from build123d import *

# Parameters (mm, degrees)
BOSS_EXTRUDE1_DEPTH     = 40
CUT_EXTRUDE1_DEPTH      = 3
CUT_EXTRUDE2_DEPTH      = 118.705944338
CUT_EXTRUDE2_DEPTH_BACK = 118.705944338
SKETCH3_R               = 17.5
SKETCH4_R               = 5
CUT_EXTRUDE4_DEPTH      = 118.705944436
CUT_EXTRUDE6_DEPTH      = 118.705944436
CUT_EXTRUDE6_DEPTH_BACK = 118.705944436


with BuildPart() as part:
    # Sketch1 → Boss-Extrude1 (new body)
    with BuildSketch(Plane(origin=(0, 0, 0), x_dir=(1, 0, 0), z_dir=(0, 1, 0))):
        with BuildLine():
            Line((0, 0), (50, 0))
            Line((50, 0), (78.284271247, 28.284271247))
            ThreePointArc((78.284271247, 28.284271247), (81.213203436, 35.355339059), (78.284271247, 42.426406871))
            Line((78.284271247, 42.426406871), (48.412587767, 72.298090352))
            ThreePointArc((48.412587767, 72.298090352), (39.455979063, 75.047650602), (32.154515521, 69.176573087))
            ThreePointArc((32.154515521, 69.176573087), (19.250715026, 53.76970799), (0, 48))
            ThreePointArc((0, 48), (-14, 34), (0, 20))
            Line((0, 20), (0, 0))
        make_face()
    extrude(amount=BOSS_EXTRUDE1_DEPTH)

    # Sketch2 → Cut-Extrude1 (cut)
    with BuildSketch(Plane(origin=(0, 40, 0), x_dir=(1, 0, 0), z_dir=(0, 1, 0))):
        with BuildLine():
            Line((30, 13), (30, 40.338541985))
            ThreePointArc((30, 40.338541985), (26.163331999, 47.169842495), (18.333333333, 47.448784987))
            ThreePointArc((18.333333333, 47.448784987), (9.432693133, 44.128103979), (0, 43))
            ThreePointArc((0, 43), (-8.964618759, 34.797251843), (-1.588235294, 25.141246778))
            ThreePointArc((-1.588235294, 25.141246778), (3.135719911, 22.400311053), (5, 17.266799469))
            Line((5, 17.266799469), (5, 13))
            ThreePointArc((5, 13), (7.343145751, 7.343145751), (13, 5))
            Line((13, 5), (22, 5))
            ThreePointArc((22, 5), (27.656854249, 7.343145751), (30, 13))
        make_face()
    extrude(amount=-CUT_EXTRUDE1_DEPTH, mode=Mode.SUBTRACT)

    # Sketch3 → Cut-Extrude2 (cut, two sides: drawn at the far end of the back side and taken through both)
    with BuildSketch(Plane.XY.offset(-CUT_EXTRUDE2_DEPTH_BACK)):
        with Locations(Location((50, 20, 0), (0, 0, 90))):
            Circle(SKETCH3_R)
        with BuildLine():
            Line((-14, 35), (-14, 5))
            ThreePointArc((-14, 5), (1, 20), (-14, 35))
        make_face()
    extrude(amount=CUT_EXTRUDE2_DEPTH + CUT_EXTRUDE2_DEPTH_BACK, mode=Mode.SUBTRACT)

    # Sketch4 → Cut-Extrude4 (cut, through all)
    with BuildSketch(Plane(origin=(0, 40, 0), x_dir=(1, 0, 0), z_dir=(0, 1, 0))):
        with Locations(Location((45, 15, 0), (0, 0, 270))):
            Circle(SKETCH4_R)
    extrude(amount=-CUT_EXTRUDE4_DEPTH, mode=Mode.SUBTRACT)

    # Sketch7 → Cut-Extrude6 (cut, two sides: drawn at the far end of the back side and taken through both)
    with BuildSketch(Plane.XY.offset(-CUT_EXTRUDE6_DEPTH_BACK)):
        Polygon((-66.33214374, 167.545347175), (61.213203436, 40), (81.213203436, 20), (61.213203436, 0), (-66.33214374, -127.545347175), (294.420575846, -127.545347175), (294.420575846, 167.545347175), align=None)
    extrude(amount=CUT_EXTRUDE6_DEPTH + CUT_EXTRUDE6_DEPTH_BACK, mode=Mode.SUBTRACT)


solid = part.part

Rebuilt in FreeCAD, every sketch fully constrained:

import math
import FreeCAD as App
import Part
import Sketcher

V = App.Vector
Q = App.Units.Quantity

doc = App.newDocument("Part")
body = doc.addObject("PartDesign::Body", "Body")

# Sketch on XZ plane
sketch1 = body.newObject("Sketcher::SketchObject", "Sketch")
sketch1.AttachmentSupport = (doc.getObject("XZ_Plane"), [""])
sketch1.MapMode = "FlatFace"
sketch1.addGeometry(Part.LineSegment(V(0, 0, 0), V(50, 0, 0)), False)
sketch1.addGeometry(Part.LineSegment(V(50, 0, 0), V(78, -28, 0)), False)
sketch1.addGeometry(Part.ArcOfCircle(Part.Circle(V(71, -35, 0), V(0, 0, 1), 10), math.radians(-45), math.radians(45)), False)
sketch1.addGeometry(Part.LineSegment(V(78, -42, 0), V(48, -72, 0)), False)
sketch1.addGeometry(Part.ArcOfCircle(Part.Circle(V(41, -65, 0), V(0, 0, 1), 10), math.radians(-157), math.radians(-45)), False)
sketch1.addGeometry(Part.ArcOfCircle(Part.Circle(V(0, -83, 0), V(0, 0, 1), 35), math.radians(23), math.radians(90)), False)
sketch1.addGeometry(Part.ArcOfCircle(Part.Circle(V(0, -34, 0), V(0, 0, 1), 14), math.radians(90), math.radians(270)), False)
sketch1.addGeometry(Part.LineSegment(V(0, -20, 0), V(0, 0, 0)), False)
sketch1.addConstraint(Sketcher.Constraint("Coincident", 0, 2, 1, 1))
sketch1.addConstraint(Sketcher.Constraint("Tangent", 1, 2, 2, 2))
sketch1.addConstraint(Sketcher.Constraint("Tangent", 2, 1, 3, 1))
sketch1.addConstraint(Sketcher.Constraint("Tangent", 3, 2, 4, 2))
sketch1.addConstraint(Sketcher.Constraint("Tangent", 4, 1, 5, 1))
sketch1.addConstraint(Sketcher.Constraint("Tangent", 5, 2, 6, 2))
sketch1.addConstraint(Sketcher.Constraint("Coincident", 6, 1, 7, 1))
sketch1.addConstraint(Sketcher.Constraint("Coincident", 7, 2, 0, 1))
sketch1.addConstraint(Sketcher.Constraint("Horizontal", 0))
sketch1.addConstraint(Sketcher.Constraint("Vertical", 7))
sketch1.addConstraint(Sketcher.Constraint("Coincident", 7, 2, -1, 1))
sketch1.addConstraint(Sketcher.Constraint("Equal", 2, 4))
sketch1.addConstraint(Sketcher.Constraint("PointOnObject", 5, 3, -2))
sketch1.addConstraint(Sketcher.Constraint("PointOnObject", 6, 3, -2))
sketch1.addConstraint(Sketcher.Constraint("Perpendicular", 1, 3))
sketch1.addConstraint(Sketcher.Constraint("Vertical", 1, 2, 2, 1))
sketch1.addConstraint(Sketcher.Constraint("Radius", 2, Q("10 mm")))
sketch1.addConstraint(Sketcher.Constraint("Radius", 5, Q("35 mm")))
sketch1.addConstraint(Sketcher.Constraint("Radius", 6, Q("14 mm")))
sketch1.addConstraint(Sketcher.Constraint("DistanceX", 0, 1, 0, 2, Q("50 mm")))
sketch1.addConstraint(Sketcher.Constraint("DistanceY", 7, 1, 7, 2, Q("20 mm")))
sketch1.addConstraint(Sketcher.Constraint("Distance", 1, Q("40 mm")))
pad1 = body.newObject("PartDesign::Pad", "Pad")
pad1.Profile = sketch1
pad1.Length = 40
pad1.Reversed = True

# Sketch on XZ plane
sketch2 = body.newObject("Sketcher::SketchObject", "Sketch001")
sketch2.AttachmentSupport = (doc.getObject("XZ_Plane"), [""])
sketch2.MapMode = "FlatFace"
sketch2.AttachmentOffset = App.Placement(V(0, 0, -40), App.Rotation())
sketch2.addGeometry(Part.LineSegment(V(30, -13, 0), V(30, -40.3, 0)), False)
sketch2.addGeometry(Part.ArcOfCircle(Part.Circle(V(22, -40.3, 0), V(0, 0, 1), 8), math.radians(-117), math.radians(0)), False)
sketch2.addGeometry(Part.ArcOfCircle(Part.Circle(V(0, -83, 0), V(0, 0, 1), 40), math.radians(63), math.radians(90)), False)
sketch2.addGeometry(Part.ArcOfCircle(Part.Circle(V(0, -34, 0), V(0, 0, 1), 9), math.radians(100), math.radians(270)), False)
sketch2.addGeometry(Part.ArcOfCircle(Part.Circle(V(-3, -17.3, 0), V(0, 0, 1), 8), math.radians(-80), math.radians(0)), False)
sketch2.addGeometry(Part.LineSegment(V(5, -17.3, 0), V(5, -13, 0)), False)
sketch2.addGeometry(Part.ArcOfCircle(Part.Circle(V(13, -13, 0), V(0, 0, 1), 8), math.radians(90), math.radians(180)), False)
sketch2.addGeometry(Part.LineSegment(V(13, -5, 0), V(22, -5, 0)), False)
sketch2.addGeometry(Part.ArcOfCircle(Part.Circle(V(22, -13, 0), V(0, 0, 1), 8), math.radians(0), math.radians(90)), False)
sketch2.addConstraint(Sketcher.Constraint("Tangent", 0, 2, 1, 2))
sketch2.addConstraint(Sketcher.Constraint("Tangent", 1, 1, 2, 1))
sketch2.addConstraint(Sketcher.Constraint("Tangent", 2, 2, 3, 2))
sketch2.addConstraint(Sketcher.Constraint("Tangent", 3, 1, 4, 1))
sketch2.addConstraint(Sketcher.Constraint("Tangent", 4, 2, 5, 1))
sketch2.addConstraint(Sketcher.Constraint("Tangent", 5, 2, 6, 2))
sketch2.addConstraint(Sketcher.Constraint("Tangent", 6, 1, 7, 1))
sketch2.addConstraint(Sketcher.Constraint("Tangent", 7, 2, 8, 2))
sketch2.addConstraint(Sketcher.Constraint("Tangent", 8, 1, 0, 1))
sketch2.addConstraint(Sketcher.Constraint("Vertical", 0))
sketch2.addConstraint(Sketcher.Constraint("Vertical", 5))
sketch2.addConstraint(Sketcher.Constraint("Horizontal", 7))
sketch2.addConstraint(Sketcher.Constraint("Equal", 1, 4))
sketch2.addConstraint(Sketcher.Constraint("Equal", 4, 6))
sketch2.addConstraint(Sketcher.Constraint("Equal", 6, 8))
sketch2.addConstraint(Sketcher.Constraint("PointOnObject", 2, 3, -2))
sketch2.addConstraint(Sketcher.Constraint("PointOnObject", 3, 3, -2))
sketch2.addConstraint(Sketcher.Constraint("Radius", 1, Q("8 mm")))
sketch2.addConstraint(Sketcher.Constraint("Radius", 2, Q("40 mm")))
sketch2.addConstraint(Sketcher.Constraint("Radius", 3, Q("9 mm")))
sketch2.addConstraint(Sketcher.Constraint("DistanceX", 7, 1, 7, 2, Q("9 mm")))
sketch2.addConstraint(Sketcher.Constraint("DistanceX", -1, 1, 1, 3, Q("22 mm")))
sketch2.addConstraint(Sketcher.Constraint("DistanceY", 2, 3, -1, 1, Q("83 mm")))
sketch2.addConstraint(Sketcher.Constraint("DistanceY", 6, 3, -1, 1, Q("13 mm")))
pocket1 = body.newObject("PartDesign::Pocket", "Pocket")
pocket1.Profile = sketch2
pocket1.Length = 3
pocket1.Reversed = True

# Sketch on XY plane
sketch3 = body.newObject("Sketcher::SketchObject", "Sketch002")
sketch3.AttachmentSupport = (doc.getObject("XY_Plane"), [""])
sketch3.MapMode = "FlatFace"
sketch3.addGeometry(Part.Circle(V(50, 20, 0), V(0, 0, 1), 18), False)
sketch3.addGeometry(Part.LineSegment(V(-14, 35, 0), V(-14, 5, 0)), False)
sketch3.addGeometry(Part.ArcOfCircle(Part.Circle(V(-14, 20, 0), V(0, 0, 1), 15), math.radians(-90), math.radians(90)), False)
sketch3.addConstraint(Sketcher.Constraint("Coincident", 1, 1, 2, 2))
sketch3.addConstraint(Sketcher.Constraint("Coincident", 2, 1, 1, 2))
sketch3.addConstraint(Sketcher.Constraint("Vertical", 1))
sketch3.addConstraint(Sketcher.Constraint("Horizontal", 0, 3, 2, 3))
sketch3.addConstraint(Sketcher.Constraint("Vertical", 2, 3, 1, 1))
sketch3.addConstraint(Sketcher.Constraint("Diameter", 0, Q("35 mm")))
sketch3.addConstraint(Sketcher.Constraint("Radius", 2, Q("15 mm")))
sketch3.addConstraint(Sketcher.Constraint("DistanceX", -1, 1, 0, 3, Q("50 mm")))
sketch3.addConstraint(Sketcher.Constraint("DistanceY", -1, 1, 0, 3, Q("20 mm")))
sketch3.addConstraint(Sketcher.Constraint("DistanceX", 2, 3, -1, 1, Q("14 mm")))
pocket2 = body.newObject("PartDesign::Pocket", "Pocket001")
pocket2.Profile = sketch3
pocket2.Type = "ThroughAll"
pocket2.Midplane = True

# Sketch on XZ plane
sketch4 = body.newObject("Sketcher::SketchObject", "Sketch003")
sketch4.AttachmentSupport = (doc.getObject("XZ_Plane"), [""])
sketch4.MapMode = "FlatFace"
sketch4.AttachmentOffset = App.Placement(V(0, 0, -40), App.Rotation())
sketch4.addGeometry(Part.Circle(V(45, -15, 0), V(0, 0, 1), 5), False)
sketch4.addConstraint(Sketcher.Constraint("Diameter", 0, Q("10 mm")))
sketch4.addConstraint(Sketcher.Constraint("DistanceX", -1, 1, 0, 3, Q("45 mm")))
sketch4.addConstraint(Sketcher.Constraint("DistanceY", 0, 3, -1, 1, Q("15 mm")))
pocket3 = body.newObject("PartDesign::Pocket", "Pocket002")
pocket3.Profile = sketch4
pocket3.Type = "ThroughAll"
pocket3.Reversed = True

# Sketch on XY plane
sketch5 = body.newObject("Sketcher::SketchObject", "Sketch004")
sketch5.AttachmentSupport = (doc.getObject("XY_Plane"), [""])
sketch5.MapMode = "FlatFace"
sketch5.addGeometry(Part.LineSegment(V(-66, 168, 0), V(61, 40, 0)), False)
sketch5.addGeometry(Part.LineSegment(V(61, 40, 0), V(81, 20, 0)), False)
sketch5.addGeometry(Part.LineSegment(V(81, 20, 0), V(61, 0, 0)), False)
sketch5.addGeometry(Part.LineSegment(V(61, 0, 0), V(-66, -128, 0)), False)
sketch5.addGeometry(Part.LineSegment(V(-66, -128, 0), V(294, -128, 0)), False)
sketch5.addGeometry(Part.LineSegment(V(294, -128, 0), V(294, 168, 0)), False)
sketch5.addGeometry(Part.LineSegment(V(294, 168, 0), V(-66, 168, 0)), False)
sketch5.addConstraint(Sketcher.Constraint("Coincident", 0, 2, 1, 1))
sketch5.addConstraint(Sketcher.Constraint("Coincident", 1, 2, 2, 1))
sketch5.addConstraint(Sketcher.Constraint("Coincident", 2, 2, 3, 1))
sketch5.addConstraint(Sketcher.Constraint("Coincident", 3, 2, 4, 1))
sketch5.addConstraint(Sketcher.Constraint("Coincident", 4, 2, 5, 1))
sketch5.addConstraint(Sketcher.Constraint("Coincident", 5, 2, 6, 1))
sketch5.addConstraint(Sketcher.Constraint("Coincident", 6, 2, 0, 1))
sketch5.addConstraint(Sketcher.Constraint("Horizontal", 4))
sketch5.addConstraint(Sketcher.Constraint("Vertical", 5))
sketch5.addConstraint(Sketcher.Constraint("Horizontal", 6))
sketch5.addConstraint(Sketcher.Constraint("PointOnObject", 2, 2, -1))
sketch5.addConstraint(Sketcher.Constraint("Parallel", 0, 1))
sketch5.addConstraint(Sketcher.Constraint("Perpendicular", 1, 2))
sketch5.addConstraint(Sketcher.Constraint("Parallel", 2, 3))
sketch5.addConstraint(Sketcher.Constraint("Vertical", 0, 2, 2, 2))
sketch5.addConstraint(Sketcher.Constraint("Vertical", 3, 2, 6, 2))
sketch5.addConstraint(Sketcher.Constraint("Equal", 1, 2))
sketch5.addConstraint(Sketcher.Constraint("DistanceY", -1, 1, 0, 2, Q("40 mm")))
sketch5.addConstraint(Sketcher.Constraint("DistanceX", 4, 1, 4, 2, Q("360.75272 mm")))
sketch5.addConstraint(Sketcher.Constraint("Distance", 0, Q("180.37636 mm")))
sketch5.addConstraint(Sketcher.Constraint("DistanceX", -1, 1, 0, 2, Q("61.213203 mm")))
pocket4 = body.newObject("PartDesign::Pocket", "Pocket003")
pocket4.Profile = sketch5
pocket4.Type = "ThroughAll"
pocket4.Midplane = True

doc.recompute()
